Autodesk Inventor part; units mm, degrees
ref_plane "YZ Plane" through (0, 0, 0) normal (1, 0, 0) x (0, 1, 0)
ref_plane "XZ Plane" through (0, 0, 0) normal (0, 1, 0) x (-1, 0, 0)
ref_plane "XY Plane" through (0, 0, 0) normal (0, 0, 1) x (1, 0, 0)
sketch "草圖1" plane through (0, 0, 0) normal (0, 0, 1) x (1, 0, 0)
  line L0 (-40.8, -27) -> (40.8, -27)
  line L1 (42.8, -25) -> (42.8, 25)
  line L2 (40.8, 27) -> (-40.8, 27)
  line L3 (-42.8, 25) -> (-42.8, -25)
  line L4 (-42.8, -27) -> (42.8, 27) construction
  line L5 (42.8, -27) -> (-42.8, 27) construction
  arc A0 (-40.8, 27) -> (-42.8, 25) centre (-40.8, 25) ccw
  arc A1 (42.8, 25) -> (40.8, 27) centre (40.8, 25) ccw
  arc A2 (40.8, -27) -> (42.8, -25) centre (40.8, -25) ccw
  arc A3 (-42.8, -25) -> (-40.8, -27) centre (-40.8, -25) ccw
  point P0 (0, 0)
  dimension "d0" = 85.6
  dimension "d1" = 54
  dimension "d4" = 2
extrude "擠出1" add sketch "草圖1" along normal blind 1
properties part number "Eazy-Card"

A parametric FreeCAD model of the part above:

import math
import FreeCAD as App
import Part
import Sketcher

V = App.Vector

doc = App.newDocument("Part")
body = doc.addObject("PartDesign::Body", "Body")

# Sketch on XY plane
sketch1 = doc.addObject("Sketcher::SketchObject", "Sketch")
body.addObject(sketch1)
sketch1.AttachmentSupport = (doc.XY_Plane, [""])
sketch1.MapMode = "FlatFace"
sketch1.addGeometry([
    Part.ArcOfCircle(Part.Circle(V(-40.8, -25, 0), V(0, 0, 1), 2), math.radians(180), math.radians(270)),  # 0
    Part.LineSegment(V(-40.8, -27, 0), V(40.8, -27, 0)),  # 1
    Part.ArcOfCircle(Part.Circle(V(40.8, -25, 0), V(0, 0, 1), 2), math.radians(-90), math.radians(0)),  # 2
    Part.LineSegment(V(42.8, -25, 0), V(42.8, 25, 0)),  # 3
    Part.ArcOfCircle(Part.Circle(V(40.8, 25, 0), V(0, 0, 1), 2), math.radians(0), math.radians(90)),  # 4
    Part.LineSegment(V(40.8, 27, 0), V(-40.8, 27, 0)),  # 5
    Part.ArcOfCircle(Part.Circle(V(-40.8, 25, 0), V(0, 0, 1), 2), math.radians(90), math.radians(180)),  # 6
    Part.LineSegment(V(-42.8, 25, 0), V(-42.8, -25, 0)),  # 7
], False)
sketch1.addConstraint([
    Sketcher.Constraint("Tangent", 0, 2, 1, 1),
    Sketcher.Constraint("Tangent", 1, 2, 2, 1),
    Sketcher.Constraint("Tangent", 2, 2, 3, 1),
    Sketcher.Constraint("Tangent", 3, 2, 4, 1),
    Sketcher.Constraint("Tangent", 4, 2, 5, 1),
    Sketcher.Constraint("Tangent", 5, 2, 6, 1),
    Sketcher.Constraint("Tangent", 6, 2, 7, 1),
    Sketcher.Constraint("Tangent", 7, 2, 0, 1),
    Sketcher.Constraint("Horizontal", 1),
    Sketcher.Constraint("Vertical", 3),
    Sketcher.Constraint("Horizontal", 5),
    Sketcher.Constraint("Vertical", 7),
    Sketcher.Constraint("Equal", 0, 2),
    Sketcher.Constraint("Equal", 2, 4),
    Sketcher.Constraint("Equal", 4, 6),
    Sketcher.Constraint("Symmetric", 0, 3, 4, 3, -1, 1),
    Sketcher.Constraint("Radius", 0, 2.0),
    Sketcher.Constraint("DistanceY", 1, 2, 4, 2, 54.0),
    Sketcher.Constraint("DistanceX", 1, 1, 1, 2, 81.6),
])
pad1 = doc.addObject("PartDesign::Pad", "Pad")
body.addObject(pad1)
pad1.Profile = sketch1
pad1.Length = 1

doc.recompute()
